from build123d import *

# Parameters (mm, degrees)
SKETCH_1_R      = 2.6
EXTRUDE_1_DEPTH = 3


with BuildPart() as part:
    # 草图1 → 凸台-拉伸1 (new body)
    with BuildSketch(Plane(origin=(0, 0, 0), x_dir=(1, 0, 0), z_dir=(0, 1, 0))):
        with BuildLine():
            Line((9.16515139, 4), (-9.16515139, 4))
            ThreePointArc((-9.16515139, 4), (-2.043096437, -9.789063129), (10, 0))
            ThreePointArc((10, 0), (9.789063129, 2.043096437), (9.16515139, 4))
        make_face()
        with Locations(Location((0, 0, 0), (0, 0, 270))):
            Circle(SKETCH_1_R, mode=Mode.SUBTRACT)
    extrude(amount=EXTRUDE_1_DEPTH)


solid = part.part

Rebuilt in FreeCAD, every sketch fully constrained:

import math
import FreeCAD as App
import Part
import Sketcher

V = App.Vector
Q = App.Units.Quantity

doc = App.newDocument("Part")
body = doc.addObject("PartDesign::Body", "Body")

# Sketch on XZ plane
sketch1 = doc.addObject("Sketcher::SketchObject", "Sketch")
body.addObject(sketch1)
sketch1.AttachmentSupport = (doc.XZ_Plane, [""])
sketch1.MapMode = "FlatFace"
sketch1.addGeometry([
    Part.LineSegment(V(9.2, -4, 0), V(-9.2, -4, 0)),
    Part.ArcOfCircle(Part.Circle(V(0, 0, 0), V(0, 0, 1), 10), math.radians(0), math.radians(204)),
    Part.ArcOfCircle(Part.Circle(V(0, 0, 0), V(0, 0, 1), 10), math.radians(-24), math.radians(0)),
    Part.Circle(V(0, 0, 0), V(0, 0, 1), 2.6),
], False)
sketch1.addConstraint([
    Sketcher.Constraint("Coincident", 0, 2, 1, 2),
    Sketcher.Constraint("Tangent", 1, 1, 2, 2),
    Sketcher.Constraint("Coincident", 2, 1, 0, 1),
    Sketcher.Constraint("Horizontal", 0),
    Sketcher.Constraint("Coincident", 1, 3, -1, 1),
    Sketcher.Constraint("Coincident", 3, 3, -1, 1),
    Sketcher.Constraint("Equal", 1, 2),
    Sketcher.Constraint("PointOnObject", 1, 1, -1),
    Sketcher.Constraint("Radius", 1, Q("10 mm")),
    Sketcher.Constraint("Diameter", 3, Q("5.2 mm")),
    Sketcher.Constraint("DistanceY", 0, 2, -1, 1, Q("4 mm")),
])
pad1 = doc.addObject("PartDesign::Pad", "Pad")
body.addObject(pad1)
pad1.Profile = sketch1
pad1.Length = 3
pad1.Reversed = True

doc.recompute()
